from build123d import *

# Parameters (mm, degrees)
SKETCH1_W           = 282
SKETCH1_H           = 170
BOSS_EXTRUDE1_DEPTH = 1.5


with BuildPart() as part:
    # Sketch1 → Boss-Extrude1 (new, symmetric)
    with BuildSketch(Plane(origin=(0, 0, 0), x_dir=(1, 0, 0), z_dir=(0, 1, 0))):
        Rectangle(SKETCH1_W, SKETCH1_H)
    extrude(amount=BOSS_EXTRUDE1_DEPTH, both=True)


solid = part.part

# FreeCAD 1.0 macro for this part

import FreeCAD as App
import Part
import Sketcher

V = App.Vector
Q = App.Units.Quantity

doc = App.newDocument("Part")
params = doc.addObject("Spreadsheet::Sheet", "Params")
for row, (alias, value) in enumerate([
    ("sketch1_width", "282 mm"),
    ("sketch1_height", "170 mm"),
    ("pad1_length", "3 mm"),
], start=1):
    params.set(f"A{row}", alias)
    params.set(f"B{row}", "=" + value)
    params.setAlias(f"B{row}", alias)

body = doc.addObject("PartDesign::Body", "Body")

# Sketch on XZ plane
sketch1 = body.newObject("Sketcher::SketchObject", "Sketch")
sketch1.AttachmentSupport = (doc.getObject("XZ_Plane"), [""])
sketch1.MapMode = "FlatFace"
sketch1.addGeometry([
    Part.LineSegment(V(-141, -85, 0), V(-141, 85, 0)),
    Part.LineSegment(V(-141, 85, 0), V(141, 85, 0)),
    Part.LineSegment(V(141, 85, 0), V(141, -85, 0)),
    Part.LineSegment(V(141, -85, 0), V(-141, -85, 0)),
], False)
sketch1.addConstraint([
    Sketcher.Constraint("Coincident", 0, 2, 1, 1),
    Sketcher.Constraint("Coincident", 1, 2, 2, 1),
    Sketcher.Constraint("Coincident", 2, 2, 3, 1),
    Sketcher.Constraint("Coincident", 3, 2, 0, 1),
    Sketcher.Constraint("Vertical", 0),
    Sketcher.Constraint("Horizontal", 1),
    Sketcher.Constraint("Vertical", 2),
    Sketcher.Constraint("Horizontal", 3),
    Sketcher.Constraint("Symmetric", 0, 2, 2, 2, -1, 1),
    Sketcher.Constraint("DistanceX", 1, 1, 1, 2, Q("282 mm")),
    Sketcher.Constraint("DistanceY", 0, 1, 0, 2, Q("170 mm")),
])
sketch1.setExpression("Constraints[9]", "Params.sketch1_width")
sketch1.setExpression("Constraints[10]", "Params.sketch1_height")
pad1 = body.newObject("PartDesign::Pad", "Pad")
pad1.Profile = sketch1
pad1.setExpression("Length", "Params.pad1_length")
pad1.Midplane = True

doc.recompute()
